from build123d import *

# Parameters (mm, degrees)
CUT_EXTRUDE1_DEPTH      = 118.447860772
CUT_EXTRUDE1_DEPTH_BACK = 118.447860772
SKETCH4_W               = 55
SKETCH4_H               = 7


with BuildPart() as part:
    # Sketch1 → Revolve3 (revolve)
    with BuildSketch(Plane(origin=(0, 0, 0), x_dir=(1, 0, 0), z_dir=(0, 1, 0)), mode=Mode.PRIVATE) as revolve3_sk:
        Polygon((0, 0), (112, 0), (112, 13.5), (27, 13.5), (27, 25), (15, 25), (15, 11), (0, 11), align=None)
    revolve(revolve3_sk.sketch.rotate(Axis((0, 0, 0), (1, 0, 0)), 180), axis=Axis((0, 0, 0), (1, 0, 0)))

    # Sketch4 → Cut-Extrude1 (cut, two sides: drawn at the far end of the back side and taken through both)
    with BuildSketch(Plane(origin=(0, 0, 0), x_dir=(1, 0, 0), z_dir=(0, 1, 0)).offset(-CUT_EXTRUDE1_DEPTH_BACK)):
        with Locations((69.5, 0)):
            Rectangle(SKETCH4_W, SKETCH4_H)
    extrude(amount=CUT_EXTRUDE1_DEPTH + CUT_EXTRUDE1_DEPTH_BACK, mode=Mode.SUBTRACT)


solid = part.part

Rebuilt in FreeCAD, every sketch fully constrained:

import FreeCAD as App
import Part
import Sketcher
from FreeCAD import Vector
Q = App.Units.Quantity

doc = App.newDocument("Part")
body = doc.addObject("PartDesign::Body", "Body")

# Sketch on XZ plane
sketch1 = body.newObject("Sketcher::SketchObject", "Sketch")
sketch1.AttachmentSupport = (doc.getObject("XZ_Plane"), [""])
sketch1.MapMode = "FlatFace"
sketch1.addGeometry([
    Part.LineSegment(Vector(0, 0, 0), Vector(112, 0, 0)),  # 0
    Part.LineSegment(Vector(112, 0, 0), Vector(112, -14, 0)),  # 1
    Part.LineSegment(Vector(112, -14, 0), Vector(27, -14, 0)),  # 2
    Part.LineSegment(Vector(27, -14, 0), Vector(27, -25, 0)),  # 3
    Part.LineSegment(Vector(27, -25, 0), Vector(15, -25, 0)),  # 4
    Part.LineSegment(Vector(15, -25, 0), Vector(15, -11, 0)),  # 5
    Part.LineSegment(Vector(15, -11, 0), Vector(0, -11, 0)),  # 6
    Part.LineSegment(Vector(0, -11, 0), Vector(0, 0, 0)),  # 7
], False)
sketch1.addConstraint([
    Sketcher.Constraint("Coincident", 0, 2, 1, 1),
    Sketcher.Constraint("Coincident", 1, 2, 2, 1),
    Sketcher.Constraint("Coincident", 2, 2, 3, 1),
    Sketcher.Constraint("Coincident", 3, 2, 4, 1),
    Sketcher.Constraint("Coincident", 4, 2, 5, 1),
    Sketcher.Constraint("Coincident", 5, 2, 6, 1),
    Sketcher.Constraint("Coincident", 6, 2, 7, 1),
    Sketcher.Constraint("Coincident", 7, 2, 0, 1),
    Sketcher.Constraint("Horizontal", 0),
    Sketcher.Constraint("Vertical", 1),
    Sketcher.Constraint("Horizontal", 2),
    Sketcher.Constraint("Vertical", 3),
    Sketcher.Constraint("Horizontal", 4),
    Sketcher.Constraint("Vertical", 5),
    Sketcher.Constraint("Horizontal", 6),
    Sketcher.Constraint("Vertical", 7),
    Sketcher.Constraint("Coincident", 7, 2, -1, 1),
    Sketcher.Constraint("DistanceX", 0, 1, 0, 2, Q("112 mm")),
    Sketcher.Constraint("DistanceX", 2, 2, 2, 1, Q("85 mm")),
    Sketcher.Constraint("DistanceX", 4, 2, 4, 1, Q("12 mm")),
    Sketcher.Constraint("DistanceY", 5, 1, 5, 2, Q("14 mm")),
    Sketcher.Constraint("DistanceY", 7, 1, 7, 2, Q("11 mm")),
    Sketcher.Constraint("DistanceY", 1, 2, 1, 1, Q("13.5 mm")),
])
revolution = body.newObject("PartDesign::Revolution", "Revolution")
revolution.Profile = sketch1
revolution.ReferenceAxis = (sketch1, ["H_Axis"])
revolution.Angle = 360

# Sketch on XZ plane
sketch2 = body.newObject("Sketcher::SketchObject", "Sketch001")
sketch2.AttachmentSupport = (doc.getObject("XZ_Plane"), [""])
sketch2.MapMode = "FlatFace"
sketch2.addGeometry([
    Part.LineSegment(Vector(42, -4, 0), Vector(42, 4, 0)),
    Part.LineSegment(Vector(42, 4, 0), Vector(97, 4, 0)),
    Part.LineSegment(Vector(97, 4, 0), Vector(97, -4, 0)),
    Part.LineSegment(Vector(97, -4, 0), Vector(42, -4, 0)),
], False)
sketch2.addConstraint([
    Sketcher.Constraint("Coincident", 0, 2, 1, 1),
    Sketcher.Constraint("Coincident", 1, 2, 2, 1),
    Sketcher.Constraint("Coincident", 2, 2, 3, 1),
    Sketcher.Constraint("Coincident", 3, 2, 0, 1),
    Sketcher.Constraint("Vertical", 0),
    Sketcher.Constraint("Horizontal", 1),
    Sketcher.Constraint("Vertical", 2),
    Sketcher.Constraint("Horizontal", 3),
    Sketcher.Constraint("DistanceX", 1, 1, 1, 2, Q("55 mm")),
    Sketcher.Constraint("DistanceY", 0, 1, 0, 2, Q("7 mm")),
    Sketcher.Constraint("DistanceX", -1, 1, 0, 2, Q("42 mm")),
    Sketcher.Constraint("DistanceY", -1, 1, 0, 2, Q("3.5 mm")),
])
pocket1 = body.newObject("PartDesign::Pocket", "Pocket")
pocket1.Profile = sketch2
pocket1.Type = "ThroughAll"
pocket1.Midplane = True

doc.recompute()
